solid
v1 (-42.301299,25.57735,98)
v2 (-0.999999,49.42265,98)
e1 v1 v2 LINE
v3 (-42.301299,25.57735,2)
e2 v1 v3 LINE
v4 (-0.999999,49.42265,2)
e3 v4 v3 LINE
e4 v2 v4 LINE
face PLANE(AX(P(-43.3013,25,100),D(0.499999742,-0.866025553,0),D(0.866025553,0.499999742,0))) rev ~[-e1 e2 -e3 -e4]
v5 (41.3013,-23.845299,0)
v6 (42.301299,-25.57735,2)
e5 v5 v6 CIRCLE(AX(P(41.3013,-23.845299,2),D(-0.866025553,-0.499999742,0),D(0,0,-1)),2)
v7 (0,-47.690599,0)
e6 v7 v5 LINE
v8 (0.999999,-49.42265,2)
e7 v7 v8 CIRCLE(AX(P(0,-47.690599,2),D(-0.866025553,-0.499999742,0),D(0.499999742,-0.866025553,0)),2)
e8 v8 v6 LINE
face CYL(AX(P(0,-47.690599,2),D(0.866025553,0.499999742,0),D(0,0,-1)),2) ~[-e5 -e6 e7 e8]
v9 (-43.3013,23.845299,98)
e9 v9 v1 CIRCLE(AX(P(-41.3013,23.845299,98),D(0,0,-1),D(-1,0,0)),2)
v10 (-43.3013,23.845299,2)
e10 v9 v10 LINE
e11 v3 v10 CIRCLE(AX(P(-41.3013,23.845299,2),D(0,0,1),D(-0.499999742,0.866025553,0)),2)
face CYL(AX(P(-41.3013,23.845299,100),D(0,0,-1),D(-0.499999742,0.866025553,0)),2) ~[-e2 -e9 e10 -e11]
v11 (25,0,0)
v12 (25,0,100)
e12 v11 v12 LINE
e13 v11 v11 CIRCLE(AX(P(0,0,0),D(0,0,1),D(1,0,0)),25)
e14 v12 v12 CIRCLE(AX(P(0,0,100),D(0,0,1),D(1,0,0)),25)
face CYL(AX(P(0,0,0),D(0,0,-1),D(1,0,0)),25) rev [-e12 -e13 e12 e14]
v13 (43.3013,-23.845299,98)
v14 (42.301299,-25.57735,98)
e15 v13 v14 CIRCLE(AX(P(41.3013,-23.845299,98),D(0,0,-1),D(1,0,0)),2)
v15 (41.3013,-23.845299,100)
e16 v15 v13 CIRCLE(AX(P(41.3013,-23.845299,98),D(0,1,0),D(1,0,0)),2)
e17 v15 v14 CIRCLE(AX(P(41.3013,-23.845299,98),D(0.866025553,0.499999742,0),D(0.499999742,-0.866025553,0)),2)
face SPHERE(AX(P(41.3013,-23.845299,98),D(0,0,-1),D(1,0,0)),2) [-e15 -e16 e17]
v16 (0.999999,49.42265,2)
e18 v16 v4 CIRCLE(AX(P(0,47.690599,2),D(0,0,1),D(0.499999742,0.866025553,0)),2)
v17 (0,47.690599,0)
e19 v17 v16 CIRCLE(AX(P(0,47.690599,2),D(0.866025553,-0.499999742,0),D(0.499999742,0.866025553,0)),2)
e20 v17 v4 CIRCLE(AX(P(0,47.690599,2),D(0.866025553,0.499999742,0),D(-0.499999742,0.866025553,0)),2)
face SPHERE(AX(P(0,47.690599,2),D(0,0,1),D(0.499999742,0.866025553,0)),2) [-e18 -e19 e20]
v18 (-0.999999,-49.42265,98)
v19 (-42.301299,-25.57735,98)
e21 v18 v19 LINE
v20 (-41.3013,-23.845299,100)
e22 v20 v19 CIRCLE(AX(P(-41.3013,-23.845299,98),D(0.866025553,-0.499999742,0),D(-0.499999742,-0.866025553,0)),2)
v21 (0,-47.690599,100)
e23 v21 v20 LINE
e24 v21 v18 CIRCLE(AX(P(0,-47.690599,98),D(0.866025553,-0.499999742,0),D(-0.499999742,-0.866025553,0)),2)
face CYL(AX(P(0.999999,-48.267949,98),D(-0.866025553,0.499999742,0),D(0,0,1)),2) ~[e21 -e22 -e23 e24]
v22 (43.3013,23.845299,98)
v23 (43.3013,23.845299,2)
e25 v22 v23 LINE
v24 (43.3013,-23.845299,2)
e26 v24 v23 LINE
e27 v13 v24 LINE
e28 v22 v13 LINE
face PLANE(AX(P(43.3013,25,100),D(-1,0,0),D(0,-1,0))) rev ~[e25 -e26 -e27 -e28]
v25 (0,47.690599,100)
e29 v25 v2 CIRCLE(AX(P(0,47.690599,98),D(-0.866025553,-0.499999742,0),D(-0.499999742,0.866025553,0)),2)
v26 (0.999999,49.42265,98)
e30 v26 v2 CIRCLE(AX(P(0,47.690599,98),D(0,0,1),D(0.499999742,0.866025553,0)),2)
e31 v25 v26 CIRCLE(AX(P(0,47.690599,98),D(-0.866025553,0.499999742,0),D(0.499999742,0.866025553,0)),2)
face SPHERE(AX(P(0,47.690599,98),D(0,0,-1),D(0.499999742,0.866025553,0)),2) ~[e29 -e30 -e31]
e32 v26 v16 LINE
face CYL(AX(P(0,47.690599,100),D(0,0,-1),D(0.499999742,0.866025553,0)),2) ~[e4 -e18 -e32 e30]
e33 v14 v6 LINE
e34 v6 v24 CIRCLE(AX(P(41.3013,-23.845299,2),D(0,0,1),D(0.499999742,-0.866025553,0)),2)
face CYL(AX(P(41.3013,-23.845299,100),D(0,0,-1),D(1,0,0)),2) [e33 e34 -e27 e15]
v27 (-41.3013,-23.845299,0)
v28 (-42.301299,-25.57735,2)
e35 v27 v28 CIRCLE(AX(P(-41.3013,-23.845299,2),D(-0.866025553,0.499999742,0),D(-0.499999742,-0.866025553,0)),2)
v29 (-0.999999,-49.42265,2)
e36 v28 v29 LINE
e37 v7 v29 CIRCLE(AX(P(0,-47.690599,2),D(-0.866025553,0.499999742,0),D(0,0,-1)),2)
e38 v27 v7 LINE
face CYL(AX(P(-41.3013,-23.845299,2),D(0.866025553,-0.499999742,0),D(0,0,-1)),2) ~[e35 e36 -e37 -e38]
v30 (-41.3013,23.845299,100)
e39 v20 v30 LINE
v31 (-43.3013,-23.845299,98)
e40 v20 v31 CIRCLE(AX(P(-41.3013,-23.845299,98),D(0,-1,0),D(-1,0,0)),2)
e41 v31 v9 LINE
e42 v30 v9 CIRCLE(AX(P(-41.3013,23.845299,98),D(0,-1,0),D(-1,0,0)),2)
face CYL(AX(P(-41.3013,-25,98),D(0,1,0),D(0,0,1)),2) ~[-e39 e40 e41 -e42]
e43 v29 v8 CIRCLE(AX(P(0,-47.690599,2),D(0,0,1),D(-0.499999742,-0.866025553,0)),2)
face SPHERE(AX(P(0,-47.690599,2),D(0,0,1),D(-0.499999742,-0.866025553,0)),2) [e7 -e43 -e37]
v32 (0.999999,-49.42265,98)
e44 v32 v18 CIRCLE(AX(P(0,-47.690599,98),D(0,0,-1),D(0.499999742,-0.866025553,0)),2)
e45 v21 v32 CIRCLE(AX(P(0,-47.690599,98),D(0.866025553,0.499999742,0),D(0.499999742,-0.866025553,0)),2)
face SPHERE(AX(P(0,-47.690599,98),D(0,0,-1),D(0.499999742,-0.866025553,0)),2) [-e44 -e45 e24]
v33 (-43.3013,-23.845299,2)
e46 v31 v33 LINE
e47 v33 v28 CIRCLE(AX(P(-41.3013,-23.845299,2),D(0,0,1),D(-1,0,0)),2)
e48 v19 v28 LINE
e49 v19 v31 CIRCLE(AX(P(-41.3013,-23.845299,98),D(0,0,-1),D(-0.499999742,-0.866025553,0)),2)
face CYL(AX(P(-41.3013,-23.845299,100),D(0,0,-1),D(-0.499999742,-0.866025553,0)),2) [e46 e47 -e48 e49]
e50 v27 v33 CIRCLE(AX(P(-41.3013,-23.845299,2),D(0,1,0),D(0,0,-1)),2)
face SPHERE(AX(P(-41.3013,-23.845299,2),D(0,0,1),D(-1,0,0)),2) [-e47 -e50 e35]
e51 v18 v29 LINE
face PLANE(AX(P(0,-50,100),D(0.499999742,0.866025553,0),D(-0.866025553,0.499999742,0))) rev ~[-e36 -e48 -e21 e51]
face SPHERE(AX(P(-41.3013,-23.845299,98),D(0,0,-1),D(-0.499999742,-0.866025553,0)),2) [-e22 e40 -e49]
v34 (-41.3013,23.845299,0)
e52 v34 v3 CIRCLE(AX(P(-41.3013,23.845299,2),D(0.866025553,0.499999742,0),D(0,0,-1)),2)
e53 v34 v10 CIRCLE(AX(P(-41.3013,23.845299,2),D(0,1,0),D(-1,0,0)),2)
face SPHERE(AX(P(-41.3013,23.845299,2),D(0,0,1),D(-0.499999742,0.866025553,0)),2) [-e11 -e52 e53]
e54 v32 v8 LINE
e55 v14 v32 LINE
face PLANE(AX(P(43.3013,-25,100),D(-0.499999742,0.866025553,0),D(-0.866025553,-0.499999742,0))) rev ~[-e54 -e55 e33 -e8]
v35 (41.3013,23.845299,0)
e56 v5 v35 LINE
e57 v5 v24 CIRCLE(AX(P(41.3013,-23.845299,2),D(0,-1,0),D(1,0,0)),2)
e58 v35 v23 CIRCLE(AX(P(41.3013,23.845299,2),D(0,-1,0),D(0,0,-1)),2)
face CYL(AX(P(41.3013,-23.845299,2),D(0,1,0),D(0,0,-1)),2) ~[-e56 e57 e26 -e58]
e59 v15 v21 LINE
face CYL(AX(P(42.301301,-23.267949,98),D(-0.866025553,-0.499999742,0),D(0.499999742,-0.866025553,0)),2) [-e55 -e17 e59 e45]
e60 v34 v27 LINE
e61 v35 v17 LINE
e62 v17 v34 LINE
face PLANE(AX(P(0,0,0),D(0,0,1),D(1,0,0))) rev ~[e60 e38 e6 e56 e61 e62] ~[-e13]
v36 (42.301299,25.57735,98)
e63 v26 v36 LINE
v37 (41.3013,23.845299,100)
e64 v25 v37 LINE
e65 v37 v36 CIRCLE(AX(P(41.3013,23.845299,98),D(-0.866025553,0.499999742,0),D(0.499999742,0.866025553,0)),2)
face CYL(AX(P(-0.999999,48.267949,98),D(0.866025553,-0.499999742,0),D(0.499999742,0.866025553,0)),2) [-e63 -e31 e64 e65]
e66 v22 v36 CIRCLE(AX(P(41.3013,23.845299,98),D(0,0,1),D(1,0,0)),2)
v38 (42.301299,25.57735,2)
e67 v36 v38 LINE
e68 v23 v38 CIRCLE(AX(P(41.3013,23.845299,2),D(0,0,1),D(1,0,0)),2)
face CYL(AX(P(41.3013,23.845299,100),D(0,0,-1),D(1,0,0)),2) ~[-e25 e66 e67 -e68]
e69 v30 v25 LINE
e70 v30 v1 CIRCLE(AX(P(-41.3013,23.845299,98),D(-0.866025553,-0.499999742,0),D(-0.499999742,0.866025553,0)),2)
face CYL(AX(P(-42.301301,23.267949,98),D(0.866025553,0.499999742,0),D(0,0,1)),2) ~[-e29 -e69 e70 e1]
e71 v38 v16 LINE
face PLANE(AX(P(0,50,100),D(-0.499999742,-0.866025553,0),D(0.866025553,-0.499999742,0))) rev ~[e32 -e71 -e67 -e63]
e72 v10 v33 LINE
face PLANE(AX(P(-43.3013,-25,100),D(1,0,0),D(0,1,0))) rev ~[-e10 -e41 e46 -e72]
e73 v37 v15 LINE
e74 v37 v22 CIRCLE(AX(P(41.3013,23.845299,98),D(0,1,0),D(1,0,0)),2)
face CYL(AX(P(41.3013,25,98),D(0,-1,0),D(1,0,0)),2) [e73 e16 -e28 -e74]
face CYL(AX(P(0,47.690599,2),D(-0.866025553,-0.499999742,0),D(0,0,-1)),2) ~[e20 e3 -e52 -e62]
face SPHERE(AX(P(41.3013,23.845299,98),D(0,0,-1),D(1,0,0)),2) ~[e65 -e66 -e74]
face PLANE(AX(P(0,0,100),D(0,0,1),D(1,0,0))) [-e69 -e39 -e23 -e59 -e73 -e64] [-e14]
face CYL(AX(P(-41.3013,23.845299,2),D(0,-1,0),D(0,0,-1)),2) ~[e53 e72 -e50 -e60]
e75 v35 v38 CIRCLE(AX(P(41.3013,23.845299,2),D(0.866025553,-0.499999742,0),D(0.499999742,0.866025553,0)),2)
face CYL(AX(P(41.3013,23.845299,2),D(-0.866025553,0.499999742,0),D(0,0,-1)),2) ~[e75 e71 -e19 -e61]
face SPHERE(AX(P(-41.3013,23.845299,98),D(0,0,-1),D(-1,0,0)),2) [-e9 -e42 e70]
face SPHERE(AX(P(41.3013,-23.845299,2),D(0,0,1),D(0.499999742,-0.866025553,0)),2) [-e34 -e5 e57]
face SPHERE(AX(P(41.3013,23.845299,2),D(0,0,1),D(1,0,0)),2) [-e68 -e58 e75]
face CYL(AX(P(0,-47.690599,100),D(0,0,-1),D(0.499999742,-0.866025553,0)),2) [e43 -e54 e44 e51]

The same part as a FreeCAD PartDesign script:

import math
import FreeCAD as App
import Part
import Sketcher
from FreeCAD import Vector
Q = App.Units.Quantity


def edges_at(feature, points):
    """Names of the edges that pass closest to the given points."""
    edges = feature.Shape.Edges
    near = lambda p: min(range(len(edges)), key=lambda i: edges[i].distToShape(Part.Vertex(*p))[0])
    return sorted({f"Edge{near(p) + 1}" for p in points})

doc = App.newDocument("Part")
body = doc.addObject("PartDesign::Body", "Body")

# Sketch on XY plane
sketch1 = body.newObject("Sketcher::SketchObject", "Sketch")
sketch1.AttachmentSupport = (doc.getObject("XY_Plane"), [""])
sketch1.MapMode = "FlatFace"
sketch1.addGeometry([
    Part.Circle(Vector(0, 0, 0), Vector(0, 0, 1), 50),
    Part.Circle(Vector(0, 0, 0), Vector(0, 0, 1), 25),
], False)
sketch1.addConstraint([
    Sketcher.Constraint("Coincident", 0, 3, -1, 1),
    Sketcher.Constraint("Coincident", 1, 3, -1, 1),
    Sketcher.Constraint("Diameter", 0, Q("100 mm")),
    Sketcher.Constraint("Diameter", 1, Q("50 mm")),
])
pad1 = body.newObject("PartDesign::Pad", "Pad")
pad1.Profile = sketch1
pad1.Length = 100

# Sketch on XY plane
sketch2 = body.newObject("Sketcher::SketchObject", "Sketch001")
sketch2.AttachmentSupport = (doc.getObject("XY_Plane"), [""])
sketch2.MapMode = "FlatFace"
sketch2.AttachmentOffset = App.Placement(Vector(0, 0, 100), App.Rotation())
sketch2.addGeometry([
    Part.ArcOfCircle(Part.Circle(Vector(0, 0, 0), Vector(0, 0, 1), 50), math.radians(-30), math.radians(30)),  # 0
    Part.LineSegment(Vector(43, -25, 0), Vector(43, 25, 0)),  # 1
    Part.LineSegment(Vector(0, 50, 0), Vector(43, 25, 0)),  # 2
    Part.ArcOfCircle(Part.Circle(Vector(0, 0, 0), Vector(0, 0, 1), 50), math.radians(30), math.radians(90)),  # 3
    Part.ArcOfCircle(Part.Circle(Vector(0, 0, 0), Vector(0, 0, 1), 50), math.radians(-90), math.radians(-30)),  # 4
    Part.LineSegment(Vector(0, -50, 0), Vector(43, -25, 0)),  # 5
    Part.LineSegment(Vector(-43, 25, 0), Vector(0, 50, 0)),  # 6
    Part.ArcOfCircle(Part.Circle(Vector(0, 0, 0), Vector(0, 0, 1), 50), math.radians(90), math.radians(150)),  # 7
    Part.ArcOfCircle(Part.Circle(Vector(0, 0, 0), Vector(0, 0, 1), 50), math.radians(-150), math.radians(-90)),  # 8
    Part.LineSegment(Vector(0, -50, 0), Vector(-43, -25, 0)),  # 9
    Part.LineSegment(Vector(-43, -25, 0), Vector(-43, 25, 0)),  # 10
    Part.ArcOfCircle(Part.Circle(Vector(0, 0, 0), Vector(0, 0, 1), 50), math.radians(150), math.radians(210)),  # 11
], False)
sketch2.addConstraint([
    Sketcher.Constraint("Coincident", 0, 1, 1, 1),
    Sketcher.Constraint("Coincident", 1, 2, 0, 2),
    Sketcher.Constraint("Coincident", 2, 1, 3, 2),
    Sketcher.Constraint("Coincident", 3, 1, 2, 2),
    Sketcher.Constraint("Coincident", 4, 1, 5, 1),
    Sketcher.Constraint("Coincident", 5, 2, 4, 2),
    Sketcher.Constraint("Coincident", 6, 1, 7, 2),
    Sketcher.Constraint("Coincident", 7, 1, 6, 2),
    Sketcher.Constraint("Coincident", 8, 1, 9, 2),
    Sketcher.Constraint("Coincident", 9, 1, 8, 2),
    Sketcher.Constraint("Coincident", 10, 1, 11, 2),
    Sketcher.Constraint("Coincident", 11, 1, 10, 2),
    Sketcher.Constraint("Vertical", 1),
    Sketcher.Constraint("Vertical", 10),
    Sketcher.Constraint("Coincident", 0, 3, -1, 1),
    Sketcher.Constraint("Coincident", 3, 3, -1, 1),
    Sketcher.Constraint("Coincident", 4, 3, -1, 1),
    Sketcher.Constraint("Coincident", 7, 3, -1, 1),
    Sketcher.Constraint("Coincident", 8, 3, -1, 1),
    Sketcher.Constraint("Coincident", 11, 3, -1, 1),
    Sketcher.Constraint("Coincident", 3, 1, 1, 2),
    Sketcher.Constraint("Coincident", 5, 2, 0, 1),
    Sketcher.Constraint("Coincident", 7, 1, 2, 1),
    Sketcher.Constraint("Coincident", 9, 1, 4, 1),
    Sketcher.Constraint("Coincident", 10, 1, 8, 1),
    Sketcher.Constraint("PointOnObject", 2, 1, -2),
    Sketcher.Constraint("PointOnObject", 4, 1, -2),
    Sketcher.Constraint("Parallel", 5, 6),
    Sketcher.Constraint("Parallel", 2, 9),
    Sketcher.Constraint("Radius", 0, Q("50 mm")),
    Sketcher.Constraint("DistanceY", 1, 1, 1, 2, Q("50 mm")),
])
pocket1 = body.newObject("PartDesign::Pocket", "Pocket")
pocket1.Profile = sketch2
pocket1.Length = 100
doc.recompute()

fillet = body.newObject("PartDesign::Fillet", "Fillet")
fillet.Base = (pocket1, edges_at(pocket1, [
    (0, 50, 50),
    (21.651, 37.5, 100),
    (-21.651, 37.5, 100),
    (43.301, 25, 50),
    (43.301, -25, 50),
    (43.301, 0, 100),
    (-43.301, 25, 50),
    (-43.301, 0, 100),
    (-43.301, -25, 50),
    (-21.651, -37.5, 100),
    (0, -50, 50),
    (21.651, -37.5, 100),
]))
fillet.Radius = 2
doc.recompute()

fillet2 = body.newObject("PartDesign::Fillet", "Fillet001")
fillet2.Base = (fillet, edges_at(fillet, [
    (0, 49.691, 0),
    (21.651, 37.5, 0),
    (43.033, 24.845, 0),
    (43.301, 0, 0),
    (43.033, -24.845, 0),
    (21.651, -37.5, 0),
    (0, -49.691, 0),
    (-21.651, -37.5, 0),
    (-43.033, -24.845, 0),
    (-43.301, 0, 0),
    (-43.033, 24.845, 0),
    (-21.651, 37.5, 0),
]))
fillet2.Radius = 2

doc.recompute()
